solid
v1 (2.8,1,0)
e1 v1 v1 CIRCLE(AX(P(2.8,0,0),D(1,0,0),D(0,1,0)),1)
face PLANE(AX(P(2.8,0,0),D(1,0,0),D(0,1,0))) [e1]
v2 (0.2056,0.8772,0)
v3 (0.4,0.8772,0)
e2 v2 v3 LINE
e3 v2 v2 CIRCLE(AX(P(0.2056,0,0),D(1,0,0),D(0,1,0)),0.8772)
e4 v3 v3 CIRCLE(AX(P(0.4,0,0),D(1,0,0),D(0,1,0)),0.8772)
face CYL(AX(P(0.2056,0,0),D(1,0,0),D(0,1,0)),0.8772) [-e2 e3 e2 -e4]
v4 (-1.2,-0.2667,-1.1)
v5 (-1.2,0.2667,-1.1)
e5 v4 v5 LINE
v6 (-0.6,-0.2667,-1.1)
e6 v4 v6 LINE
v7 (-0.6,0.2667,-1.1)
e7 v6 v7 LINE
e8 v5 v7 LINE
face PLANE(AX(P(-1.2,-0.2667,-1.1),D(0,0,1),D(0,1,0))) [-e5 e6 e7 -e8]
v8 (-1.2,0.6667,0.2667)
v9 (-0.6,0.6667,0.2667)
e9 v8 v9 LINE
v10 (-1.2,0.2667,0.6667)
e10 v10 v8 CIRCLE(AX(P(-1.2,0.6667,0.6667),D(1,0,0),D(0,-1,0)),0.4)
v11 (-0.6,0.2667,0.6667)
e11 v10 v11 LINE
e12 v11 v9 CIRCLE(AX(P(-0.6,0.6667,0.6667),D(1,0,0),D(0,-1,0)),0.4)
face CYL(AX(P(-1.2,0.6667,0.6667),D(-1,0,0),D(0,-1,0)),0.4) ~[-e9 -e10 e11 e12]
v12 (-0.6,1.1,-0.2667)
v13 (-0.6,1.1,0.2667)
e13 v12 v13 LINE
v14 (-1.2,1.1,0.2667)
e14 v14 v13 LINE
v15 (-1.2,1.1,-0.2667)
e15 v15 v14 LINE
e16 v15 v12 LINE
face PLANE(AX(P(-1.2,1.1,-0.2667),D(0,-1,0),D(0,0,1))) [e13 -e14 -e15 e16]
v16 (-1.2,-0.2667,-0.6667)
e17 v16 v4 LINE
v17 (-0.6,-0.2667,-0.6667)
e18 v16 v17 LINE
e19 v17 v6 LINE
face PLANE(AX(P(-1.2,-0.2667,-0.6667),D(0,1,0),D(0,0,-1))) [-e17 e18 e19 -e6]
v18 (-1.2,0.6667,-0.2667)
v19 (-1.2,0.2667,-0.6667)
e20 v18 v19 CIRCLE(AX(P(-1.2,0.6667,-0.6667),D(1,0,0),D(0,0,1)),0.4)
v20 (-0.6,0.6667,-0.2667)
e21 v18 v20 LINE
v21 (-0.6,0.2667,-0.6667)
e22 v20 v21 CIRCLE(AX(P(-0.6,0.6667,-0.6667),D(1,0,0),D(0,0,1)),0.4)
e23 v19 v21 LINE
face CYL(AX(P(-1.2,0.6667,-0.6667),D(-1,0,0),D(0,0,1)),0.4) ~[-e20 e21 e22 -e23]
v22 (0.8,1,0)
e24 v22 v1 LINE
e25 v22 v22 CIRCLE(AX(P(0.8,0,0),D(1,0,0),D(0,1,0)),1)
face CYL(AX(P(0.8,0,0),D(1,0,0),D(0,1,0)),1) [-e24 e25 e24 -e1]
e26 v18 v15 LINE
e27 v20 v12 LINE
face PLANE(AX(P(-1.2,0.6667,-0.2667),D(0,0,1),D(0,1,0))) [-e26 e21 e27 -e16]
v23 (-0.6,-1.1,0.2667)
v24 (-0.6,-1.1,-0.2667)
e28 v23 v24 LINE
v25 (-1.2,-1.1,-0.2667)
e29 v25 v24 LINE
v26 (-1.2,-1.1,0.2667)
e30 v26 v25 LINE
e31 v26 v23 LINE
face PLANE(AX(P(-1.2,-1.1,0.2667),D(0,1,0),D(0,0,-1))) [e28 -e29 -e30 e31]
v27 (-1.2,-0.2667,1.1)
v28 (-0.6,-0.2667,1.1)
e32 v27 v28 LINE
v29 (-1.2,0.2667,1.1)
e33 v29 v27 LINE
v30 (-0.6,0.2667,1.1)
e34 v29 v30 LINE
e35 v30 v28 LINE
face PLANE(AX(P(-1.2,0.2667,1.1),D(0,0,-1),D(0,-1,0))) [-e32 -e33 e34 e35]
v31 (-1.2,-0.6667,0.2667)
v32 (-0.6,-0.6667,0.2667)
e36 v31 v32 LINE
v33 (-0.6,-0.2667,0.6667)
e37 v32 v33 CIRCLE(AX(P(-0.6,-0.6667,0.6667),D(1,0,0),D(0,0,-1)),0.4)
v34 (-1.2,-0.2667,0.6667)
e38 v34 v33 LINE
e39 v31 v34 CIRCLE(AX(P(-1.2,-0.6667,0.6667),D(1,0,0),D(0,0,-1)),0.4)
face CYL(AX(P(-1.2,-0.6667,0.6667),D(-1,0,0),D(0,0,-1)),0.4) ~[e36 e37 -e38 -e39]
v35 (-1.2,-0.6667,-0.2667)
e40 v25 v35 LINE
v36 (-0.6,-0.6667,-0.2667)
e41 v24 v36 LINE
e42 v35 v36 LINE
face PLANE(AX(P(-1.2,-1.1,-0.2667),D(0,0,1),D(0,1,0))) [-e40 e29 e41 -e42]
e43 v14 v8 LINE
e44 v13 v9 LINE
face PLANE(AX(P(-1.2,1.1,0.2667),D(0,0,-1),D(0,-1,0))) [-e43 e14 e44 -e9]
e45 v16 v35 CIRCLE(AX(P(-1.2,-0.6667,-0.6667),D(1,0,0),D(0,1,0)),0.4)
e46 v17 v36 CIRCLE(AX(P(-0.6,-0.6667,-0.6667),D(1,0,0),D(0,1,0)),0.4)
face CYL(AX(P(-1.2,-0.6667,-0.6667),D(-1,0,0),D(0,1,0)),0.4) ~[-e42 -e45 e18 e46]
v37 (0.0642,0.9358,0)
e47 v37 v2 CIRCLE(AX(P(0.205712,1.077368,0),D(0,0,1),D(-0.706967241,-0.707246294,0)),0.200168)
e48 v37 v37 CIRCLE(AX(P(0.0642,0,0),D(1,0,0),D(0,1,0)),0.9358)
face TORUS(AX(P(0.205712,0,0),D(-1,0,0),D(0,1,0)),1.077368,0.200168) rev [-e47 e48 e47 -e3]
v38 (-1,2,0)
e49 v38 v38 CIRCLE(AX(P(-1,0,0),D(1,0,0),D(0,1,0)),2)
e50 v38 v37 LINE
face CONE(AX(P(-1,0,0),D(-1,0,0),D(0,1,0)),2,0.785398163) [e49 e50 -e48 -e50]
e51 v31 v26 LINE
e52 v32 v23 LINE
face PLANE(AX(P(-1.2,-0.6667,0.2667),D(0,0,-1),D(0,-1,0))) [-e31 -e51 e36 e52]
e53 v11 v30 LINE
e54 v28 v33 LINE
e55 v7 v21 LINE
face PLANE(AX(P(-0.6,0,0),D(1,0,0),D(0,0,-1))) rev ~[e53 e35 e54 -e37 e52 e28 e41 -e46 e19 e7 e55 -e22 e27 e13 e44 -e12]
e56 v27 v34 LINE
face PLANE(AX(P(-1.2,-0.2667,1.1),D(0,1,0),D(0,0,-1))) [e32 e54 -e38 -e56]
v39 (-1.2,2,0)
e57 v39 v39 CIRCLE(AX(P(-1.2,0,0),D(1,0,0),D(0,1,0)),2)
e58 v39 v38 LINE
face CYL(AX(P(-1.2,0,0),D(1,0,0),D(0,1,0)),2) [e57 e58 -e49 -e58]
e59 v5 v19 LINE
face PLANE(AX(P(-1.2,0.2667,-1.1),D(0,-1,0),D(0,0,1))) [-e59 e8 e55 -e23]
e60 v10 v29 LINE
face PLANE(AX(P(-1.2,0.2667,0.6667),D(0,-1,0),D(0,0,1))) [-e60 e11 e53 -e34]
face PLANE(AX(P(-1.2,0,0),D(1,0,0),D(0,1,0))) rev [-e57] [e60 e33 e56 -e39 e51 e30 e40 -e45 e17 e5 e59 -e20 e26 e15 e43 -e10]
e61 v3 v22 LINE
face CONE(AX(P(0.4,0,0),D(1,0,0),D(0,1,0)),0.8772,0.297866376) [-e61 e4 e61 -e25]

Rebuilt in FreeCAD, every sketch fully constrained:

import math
import FreeCAD as App
import Part
import Sketcher

V = App.Vector
Q = App.Units.Quantity

doc = App.newDocument("Part")
params = doc.addObject("Spreadsheet::Sheet", "Params")
for row, (alias, value) in enumerate([
    ("sketch1_radius", "0.2 mm"),
    ("sketch1_width", "4 mm"),
    ("sketch1_width2", "2 mm"),
    ("sketch1_height", "1 mm"),
    ("sketch1_width3", "0.2 mm"),
    ("revolution_angle", "360 deg"),
    ("sketch2_radius", "0.4 mm"),
    ("pocket1_length", "0.6 mm"),
], start=1):
    params.set(f"A{row}", alias)
    params.set(f"B{row}", "=" + value)
    params.setAlias(f"B{row}", alias)

body = doc.addObject("PartDesign::Body", "Body")

# Sketch on XY plane
sketch1 = body.newObject("Sketcher::SketchObject", "Sketch")
sketch1.AttachmentSupport = (doc.getObject("XY_Plane"), [""])
sketch1.MapMode = "FlatFace"
sketch1.addGeometry(Part.LineSegment(V(-1.2, 0, 0), V(2.8, 0, 0)), False)
sketch1.addGeometry(Part.LineSegment(V(2.8, 0, 0), V(2.8, 1, 0)), False)
sketch1.addGeometry(Part.LineSegment(V(2.8, 1, 0), V(0.8, 1, 0)), False)
sketch1.addGeometry(Part.LineSegment(V(0.8, 1, 0), V(0.4, 0.88, 0)), False)
sketch1.addGeometry(Part.LineSegment(V(0.4, 0.88, 0), V(0.21, 0.88, 0)), False)
sketch1.addGeometry(Part.ArcOfCircle(Part.Circle(V(0.21, 1.08, 0), V(0, 0, 1), 0.2), math.radians(-135), math.radians(-90)), False)
sketch1.addGeometry(Part.LineSegment(V(0.06, 0.94, 0), V(-1, 2, 0)), False)
sketch1.addGeometry(Part.LineSegment(V(-1, 2, 0), V(-1.2, 2, 0)), False)
sketch1.addGeometry(Part.LineSegment(V(-1.2, 2, 0), V(-1.2, 0, 0)), False)
sketch1.addConstraint(Sketcher.Constraint("Coincident", 0, 2, 1, 1))
sketch1.addConstraint(Sketcher.Constraint("Coincident", 1, 2, 2, 1))
sketch1.addConstraint(Sketcher.Constraint("Coincident", 2, 2, 3, 1))
sketch1.addConstraint(Sketcher.Constraint("Coincident", 3, 2, 4, 1))
sketch1.addConstraint(Sketcher.Constraint("Tangent", 4, 2, 5, 2))
sketch1.addConstraint(Sketcher.Constraint("Tangent", 5, 1, 6, 1))
sketch1.addConstraint(Sketcher.Constraint("Coincident", 6, 2, 7, 1))
sketch1.addConstraint(Sketcher.Constraint("Coincident", 7, 2, 8, 1))
sketch1.addConstraint(Sketcher.Constraint("Coincident", 8, 2, 0, 1))
sketch1.addConstraint(Sketcher.Constraint("Horizontal", 0))
sketch1.addConstraint(Sketcher.Constraint("Vertical", 1))
sketch1.addConstraint(Sketcher.Constraint("Horizontal", 2))
sketch1.addConstraint(Sketcher.Constraint("Horizontal", 4))
sketch1.addConstraint(Sketcher.Constraint("Horizontal", 7))
sketch1.addConstraint(Sketcher.Constraint("Vertical", 8))
sketch1.addConstraint(Sketcher.Constraint("PointOnObject", 0, 2, -1))
sketch1.addConstraint(Sketcher.Constraint("Equal", 2, 8))
sketch1.addConstraint(Sketcher.Constraint("Radius", 5, Q("0.2 mm")))
sketch1.addConstraint(Sketcher.Constraint("DistanceX", 0, 1, 0, 2, Q("4 mm")))
sketch1.addConstraint(Sketcher.Constraint("DistanceX", 2, 2, 2, 1, Q("2 mm")))
sketch1.addConstraint(Sketcher.Constraint("DistanceY", 1, 1, 1, 2, Q("1 mm")))
sketch1.addConstraint(Sketcher.Constraint("Angle", 6, Q("135 deg")))
sketch1.addConstraint(Sketcher.Constraint("DistanceX", 7, 2, 7, 1, Q("0.2 mm")))
sketch1.addConstraint(Sketcher.Constraint("DistanceX", 6, 2, -1, 1, Q("1 mm")))
sketch1.addConstraint(Sketcher.Constraint("DistanceX", -1, 1, 3, 2, Q("0.4 mm")))
sketch1.addConstraint(Sketcher.Constraint("Distance", 6, Q("1.505 mm")))
sketch1.setExpression("Constraints[17]", "Params.sketch1_radius")
sketch1.setExpression("Constraints[18]", "Params.sketch1_width")
sketch1.setExpression("Constraints[19]", "Params.sketch1_width2")
sketch1.setExpression("Constraints[20]", "Params.sketch1_height")
sketch1.setExpression("Constraints[22]", "Params.sketch1_width3")
revolution = body.newObject("PartDesign::Revolution", "Revolution")
revolution.Profile = sketch1
revolution.ReferenceAxis = (sketch1, ["H_Axis"])
revolution.setExpression("Angle", "Params.revolution_angle")

# Sketch on YZ plane
sketch2 = body.newObject("Sketcher::SketchObject", "Sketch001")
sketch2.AttachmentSupport = (doc.getObject("YZ_Plane"), [""])
sketch2.MapMode = "FlatFace"
sketch2.AttachmentOffset = App.Placement(V(0, 0, -1.2), App.Rotation())
sketch2.addGeometry(Part.LineSegment(V(0.27, 1.1, 0), V(-0.27, 1.1, 0)), False)
sketch2.addGeometry(Part.LineSegment(V(-0.27, 1.1, 0), V(-0.27, 0.67, 0)), False)
sketch2.addGeometry(Part.ArcOfCircle(Part.Circle(V(-0.67, 0.67, 0), V(0, 0, 1), 0.4), math.radians(-90), math.radians(0)), False)
sketch2.addGeometry(Part.LineSegment(V(-0.67, 0.27, 0), V(-1.1, 0.27, 0)), False)
sketch2.addGeometry(Part.LineSegment(V(-1.1, 0.27, 0), V(-1.1, -0.27, 0)), False)
sketch2.addGeometry(Part.LineSegment(V(-1.1, -0.27, 0), V(-0.67, -0.27, 0)), False)
sketch2.addGeometry(Part.ArcOfCircle(Part.Circle(V(-0.67, -0.67, 0), V(0, 0, 1), 0.4), math.radians(0), math.radians(90)), False)
sketch2.addGeometry(Part.LineSegment(V(-0.27, -0.67, 0), V(-0.27, -1.1, 0)), False)
sketch2.addGeometry(Part.LineSegment(V(-0.27, -1.1, 0), V(0.27, -1.1, 0)), False)
sketch2.addGeometry(Part.LineSegment(V(0.27, -1.1, 0), V(0.27, -0.67, 0)), False)
sketch2.addGeometry(Part.ArcOfCircle(Part.Circle(V(0.67, -0.67, 0), V(0, 0, 1), 0.4), math.radians(90), math.radians(180)), False)
sketch2.addGeometry(Part.LineSegment(V(0.67, -0.27, 0), V(1.1, -0.27, 0)), False)
sketch2.addGeometry(Part.LineSegment(V(1.1, -0.27, 0), V(1.1, 0.27, 0)), False)
sketch2.addGeometry(Part.LineSegment(V(1.1, 0.27, 0), V(0.67, 0.27, 0)), False)
sketch2.addGeometry(Part.ArcOfCircle(Part.Circle(V(0.67, 0.67, 0), V(0, 0, 1), 0.4), math.radians(180), math.radians(270)), False)
sketch2.addGeometry(Part.LineSegment(V(0.27, 0.67, 0), V(0.27, 1.1, 0)), False)
sketch2.addConstraint(Sketcher.Constraint("Coincident", 0, 2, 1, 1))
sketch2.addConstraint(Sketcher.Constraint("Tangent", 1, 2, 2, 2))
sketch2.addConstraint(Sketcher.Constraint("Tangent", 2, 1, 3, 1))
sketch2.addConstraint(Sketcher.Constraint("Coincident", 3, 2, 4, 1))
sketch2.addConstraint(Sketcher.Constraint("Coincident", 4, 2, 5, 1))
sketch2.addConstraint(Sketcher.Constraint("Tangent", 5, 2, 6, 2))
sketch2.addConstraint(Sketcher.Constraint("Tangent", 6, 1, 7, 1))
sketch2.addConstraint(Sketcher.Constraint("Coincident", 7, 2, 8, 1))
sketch2.addConstraint(Sketcher.Constraint("Coincident", 8, 2, 9, 1))
sketch2.addConstraint(Sketcher.Constraint("Tangent", 9, 2, 10, 2))
sketch2.addConstraint(Sketcher.Constraint("Tangent", 10, 1, 11, 1))
sketch2.addConstraint(Sketcher.Constraint("Coincident", 11, 2, 12, 1))
sketch2.addConstraint(Sketcher.Constraint("Coincident", 12, 2, 13, 1))
sketch2.addConstraint(Sketcher.Constraint("Tangent", 13, 2, 14, 2))
sketch2.addConstraint(Sketcher.Constraint("Tangent", 14, 1, 15, 1))
sketch2.addConstraint(Sketcher.Constraint("Coincident", 15, 2, 0, 1))
sketch2.addConstraint(Sketcher.Constraint("Horizontal", 0))
sketch2.addConstraint(Sketcher.Constraint("Vertical", 1))
sketch2.addConstraint(Sketcher.Constraint("Horizontal", 3))
sketch2.addConstraint(Sketcher.Constraint("Vertical", 4))
sketch2.addConstraint(Sketcher.Constraint("Horizontal", 5))
sketch2.addConstraint(Sketcher.Constraint("Vertical", 7))
sketch2.addConstraint(Sketcher.Constraint("Horizontal", 8))
sketch2.addConstraint(Sketcher.Constraint("Vertical", 9))
sketch2.addConstraint(Sketcher.Constraint("Horizontal", 11))
sketch2.addConstraint(Sketcher.Constraint("Vertical", 12))
sketch2.addConstraint(Sketcher.Constraint("Horizontal", 13))
sketch2.addConstraint(Sketcher.Constraint("Vertical", 15))
sketch2.addConstraint(Sketcher.Constraint("Equal", 2, 6))
sketch2.addConstraint(Sketcher.Constraint("Equal", 6, 10))
sketch2.addConstraint(Sketcher.Constraint("Equal", 10, 14))
sketch2.addConstraint(Sketcher.Constraint("Symmetric", 2, 3, 10, 3, -1, 1))
sketch2.addConstraint(Sketcher.Constraint("Symmetric", 6, 3, 14, 3, -1, 1))
sketch2.addConstraint(Sketcher.Constraint("Symmetric", 6, 3, 10, 3, -2))
sketch2.addConstraint(Sketcher.Constraint("Equal", 5, 11))
sketch2.addConstraint(Sketcher.Constraint("Equal", 13, 1))
sketch2.addConstraint(Sketcher.Constraint("Equal", 8, 4))
sketch2.addConstraint(Sketcher.Constraint("Equal", 1, 7))
sketch2.addConstraint(Sketcher.Constraint("Radius", 2, Q("0.4 mm")))
sketch2.addConstraint(Sketcher.Constraint("DistanceY", -1, 1, 0, 2, Q("1.1 mm")))
sketch2.addConstraint(Sketcher.Constraint("DistanceX", 0, 2, 0, 1, Q("0.5334 mm")))
sketch2.setExpression("Constraints[38]", "Params.sketch2_radius")
pocket1 = body.newObject("PartDesign::Pocket", "Pocket")
pocket1.Profile = sketch2
pocket1.setExpression("Length", "Params.pocket1_length")
pocket1.Reversed = True

doc.recompute()
